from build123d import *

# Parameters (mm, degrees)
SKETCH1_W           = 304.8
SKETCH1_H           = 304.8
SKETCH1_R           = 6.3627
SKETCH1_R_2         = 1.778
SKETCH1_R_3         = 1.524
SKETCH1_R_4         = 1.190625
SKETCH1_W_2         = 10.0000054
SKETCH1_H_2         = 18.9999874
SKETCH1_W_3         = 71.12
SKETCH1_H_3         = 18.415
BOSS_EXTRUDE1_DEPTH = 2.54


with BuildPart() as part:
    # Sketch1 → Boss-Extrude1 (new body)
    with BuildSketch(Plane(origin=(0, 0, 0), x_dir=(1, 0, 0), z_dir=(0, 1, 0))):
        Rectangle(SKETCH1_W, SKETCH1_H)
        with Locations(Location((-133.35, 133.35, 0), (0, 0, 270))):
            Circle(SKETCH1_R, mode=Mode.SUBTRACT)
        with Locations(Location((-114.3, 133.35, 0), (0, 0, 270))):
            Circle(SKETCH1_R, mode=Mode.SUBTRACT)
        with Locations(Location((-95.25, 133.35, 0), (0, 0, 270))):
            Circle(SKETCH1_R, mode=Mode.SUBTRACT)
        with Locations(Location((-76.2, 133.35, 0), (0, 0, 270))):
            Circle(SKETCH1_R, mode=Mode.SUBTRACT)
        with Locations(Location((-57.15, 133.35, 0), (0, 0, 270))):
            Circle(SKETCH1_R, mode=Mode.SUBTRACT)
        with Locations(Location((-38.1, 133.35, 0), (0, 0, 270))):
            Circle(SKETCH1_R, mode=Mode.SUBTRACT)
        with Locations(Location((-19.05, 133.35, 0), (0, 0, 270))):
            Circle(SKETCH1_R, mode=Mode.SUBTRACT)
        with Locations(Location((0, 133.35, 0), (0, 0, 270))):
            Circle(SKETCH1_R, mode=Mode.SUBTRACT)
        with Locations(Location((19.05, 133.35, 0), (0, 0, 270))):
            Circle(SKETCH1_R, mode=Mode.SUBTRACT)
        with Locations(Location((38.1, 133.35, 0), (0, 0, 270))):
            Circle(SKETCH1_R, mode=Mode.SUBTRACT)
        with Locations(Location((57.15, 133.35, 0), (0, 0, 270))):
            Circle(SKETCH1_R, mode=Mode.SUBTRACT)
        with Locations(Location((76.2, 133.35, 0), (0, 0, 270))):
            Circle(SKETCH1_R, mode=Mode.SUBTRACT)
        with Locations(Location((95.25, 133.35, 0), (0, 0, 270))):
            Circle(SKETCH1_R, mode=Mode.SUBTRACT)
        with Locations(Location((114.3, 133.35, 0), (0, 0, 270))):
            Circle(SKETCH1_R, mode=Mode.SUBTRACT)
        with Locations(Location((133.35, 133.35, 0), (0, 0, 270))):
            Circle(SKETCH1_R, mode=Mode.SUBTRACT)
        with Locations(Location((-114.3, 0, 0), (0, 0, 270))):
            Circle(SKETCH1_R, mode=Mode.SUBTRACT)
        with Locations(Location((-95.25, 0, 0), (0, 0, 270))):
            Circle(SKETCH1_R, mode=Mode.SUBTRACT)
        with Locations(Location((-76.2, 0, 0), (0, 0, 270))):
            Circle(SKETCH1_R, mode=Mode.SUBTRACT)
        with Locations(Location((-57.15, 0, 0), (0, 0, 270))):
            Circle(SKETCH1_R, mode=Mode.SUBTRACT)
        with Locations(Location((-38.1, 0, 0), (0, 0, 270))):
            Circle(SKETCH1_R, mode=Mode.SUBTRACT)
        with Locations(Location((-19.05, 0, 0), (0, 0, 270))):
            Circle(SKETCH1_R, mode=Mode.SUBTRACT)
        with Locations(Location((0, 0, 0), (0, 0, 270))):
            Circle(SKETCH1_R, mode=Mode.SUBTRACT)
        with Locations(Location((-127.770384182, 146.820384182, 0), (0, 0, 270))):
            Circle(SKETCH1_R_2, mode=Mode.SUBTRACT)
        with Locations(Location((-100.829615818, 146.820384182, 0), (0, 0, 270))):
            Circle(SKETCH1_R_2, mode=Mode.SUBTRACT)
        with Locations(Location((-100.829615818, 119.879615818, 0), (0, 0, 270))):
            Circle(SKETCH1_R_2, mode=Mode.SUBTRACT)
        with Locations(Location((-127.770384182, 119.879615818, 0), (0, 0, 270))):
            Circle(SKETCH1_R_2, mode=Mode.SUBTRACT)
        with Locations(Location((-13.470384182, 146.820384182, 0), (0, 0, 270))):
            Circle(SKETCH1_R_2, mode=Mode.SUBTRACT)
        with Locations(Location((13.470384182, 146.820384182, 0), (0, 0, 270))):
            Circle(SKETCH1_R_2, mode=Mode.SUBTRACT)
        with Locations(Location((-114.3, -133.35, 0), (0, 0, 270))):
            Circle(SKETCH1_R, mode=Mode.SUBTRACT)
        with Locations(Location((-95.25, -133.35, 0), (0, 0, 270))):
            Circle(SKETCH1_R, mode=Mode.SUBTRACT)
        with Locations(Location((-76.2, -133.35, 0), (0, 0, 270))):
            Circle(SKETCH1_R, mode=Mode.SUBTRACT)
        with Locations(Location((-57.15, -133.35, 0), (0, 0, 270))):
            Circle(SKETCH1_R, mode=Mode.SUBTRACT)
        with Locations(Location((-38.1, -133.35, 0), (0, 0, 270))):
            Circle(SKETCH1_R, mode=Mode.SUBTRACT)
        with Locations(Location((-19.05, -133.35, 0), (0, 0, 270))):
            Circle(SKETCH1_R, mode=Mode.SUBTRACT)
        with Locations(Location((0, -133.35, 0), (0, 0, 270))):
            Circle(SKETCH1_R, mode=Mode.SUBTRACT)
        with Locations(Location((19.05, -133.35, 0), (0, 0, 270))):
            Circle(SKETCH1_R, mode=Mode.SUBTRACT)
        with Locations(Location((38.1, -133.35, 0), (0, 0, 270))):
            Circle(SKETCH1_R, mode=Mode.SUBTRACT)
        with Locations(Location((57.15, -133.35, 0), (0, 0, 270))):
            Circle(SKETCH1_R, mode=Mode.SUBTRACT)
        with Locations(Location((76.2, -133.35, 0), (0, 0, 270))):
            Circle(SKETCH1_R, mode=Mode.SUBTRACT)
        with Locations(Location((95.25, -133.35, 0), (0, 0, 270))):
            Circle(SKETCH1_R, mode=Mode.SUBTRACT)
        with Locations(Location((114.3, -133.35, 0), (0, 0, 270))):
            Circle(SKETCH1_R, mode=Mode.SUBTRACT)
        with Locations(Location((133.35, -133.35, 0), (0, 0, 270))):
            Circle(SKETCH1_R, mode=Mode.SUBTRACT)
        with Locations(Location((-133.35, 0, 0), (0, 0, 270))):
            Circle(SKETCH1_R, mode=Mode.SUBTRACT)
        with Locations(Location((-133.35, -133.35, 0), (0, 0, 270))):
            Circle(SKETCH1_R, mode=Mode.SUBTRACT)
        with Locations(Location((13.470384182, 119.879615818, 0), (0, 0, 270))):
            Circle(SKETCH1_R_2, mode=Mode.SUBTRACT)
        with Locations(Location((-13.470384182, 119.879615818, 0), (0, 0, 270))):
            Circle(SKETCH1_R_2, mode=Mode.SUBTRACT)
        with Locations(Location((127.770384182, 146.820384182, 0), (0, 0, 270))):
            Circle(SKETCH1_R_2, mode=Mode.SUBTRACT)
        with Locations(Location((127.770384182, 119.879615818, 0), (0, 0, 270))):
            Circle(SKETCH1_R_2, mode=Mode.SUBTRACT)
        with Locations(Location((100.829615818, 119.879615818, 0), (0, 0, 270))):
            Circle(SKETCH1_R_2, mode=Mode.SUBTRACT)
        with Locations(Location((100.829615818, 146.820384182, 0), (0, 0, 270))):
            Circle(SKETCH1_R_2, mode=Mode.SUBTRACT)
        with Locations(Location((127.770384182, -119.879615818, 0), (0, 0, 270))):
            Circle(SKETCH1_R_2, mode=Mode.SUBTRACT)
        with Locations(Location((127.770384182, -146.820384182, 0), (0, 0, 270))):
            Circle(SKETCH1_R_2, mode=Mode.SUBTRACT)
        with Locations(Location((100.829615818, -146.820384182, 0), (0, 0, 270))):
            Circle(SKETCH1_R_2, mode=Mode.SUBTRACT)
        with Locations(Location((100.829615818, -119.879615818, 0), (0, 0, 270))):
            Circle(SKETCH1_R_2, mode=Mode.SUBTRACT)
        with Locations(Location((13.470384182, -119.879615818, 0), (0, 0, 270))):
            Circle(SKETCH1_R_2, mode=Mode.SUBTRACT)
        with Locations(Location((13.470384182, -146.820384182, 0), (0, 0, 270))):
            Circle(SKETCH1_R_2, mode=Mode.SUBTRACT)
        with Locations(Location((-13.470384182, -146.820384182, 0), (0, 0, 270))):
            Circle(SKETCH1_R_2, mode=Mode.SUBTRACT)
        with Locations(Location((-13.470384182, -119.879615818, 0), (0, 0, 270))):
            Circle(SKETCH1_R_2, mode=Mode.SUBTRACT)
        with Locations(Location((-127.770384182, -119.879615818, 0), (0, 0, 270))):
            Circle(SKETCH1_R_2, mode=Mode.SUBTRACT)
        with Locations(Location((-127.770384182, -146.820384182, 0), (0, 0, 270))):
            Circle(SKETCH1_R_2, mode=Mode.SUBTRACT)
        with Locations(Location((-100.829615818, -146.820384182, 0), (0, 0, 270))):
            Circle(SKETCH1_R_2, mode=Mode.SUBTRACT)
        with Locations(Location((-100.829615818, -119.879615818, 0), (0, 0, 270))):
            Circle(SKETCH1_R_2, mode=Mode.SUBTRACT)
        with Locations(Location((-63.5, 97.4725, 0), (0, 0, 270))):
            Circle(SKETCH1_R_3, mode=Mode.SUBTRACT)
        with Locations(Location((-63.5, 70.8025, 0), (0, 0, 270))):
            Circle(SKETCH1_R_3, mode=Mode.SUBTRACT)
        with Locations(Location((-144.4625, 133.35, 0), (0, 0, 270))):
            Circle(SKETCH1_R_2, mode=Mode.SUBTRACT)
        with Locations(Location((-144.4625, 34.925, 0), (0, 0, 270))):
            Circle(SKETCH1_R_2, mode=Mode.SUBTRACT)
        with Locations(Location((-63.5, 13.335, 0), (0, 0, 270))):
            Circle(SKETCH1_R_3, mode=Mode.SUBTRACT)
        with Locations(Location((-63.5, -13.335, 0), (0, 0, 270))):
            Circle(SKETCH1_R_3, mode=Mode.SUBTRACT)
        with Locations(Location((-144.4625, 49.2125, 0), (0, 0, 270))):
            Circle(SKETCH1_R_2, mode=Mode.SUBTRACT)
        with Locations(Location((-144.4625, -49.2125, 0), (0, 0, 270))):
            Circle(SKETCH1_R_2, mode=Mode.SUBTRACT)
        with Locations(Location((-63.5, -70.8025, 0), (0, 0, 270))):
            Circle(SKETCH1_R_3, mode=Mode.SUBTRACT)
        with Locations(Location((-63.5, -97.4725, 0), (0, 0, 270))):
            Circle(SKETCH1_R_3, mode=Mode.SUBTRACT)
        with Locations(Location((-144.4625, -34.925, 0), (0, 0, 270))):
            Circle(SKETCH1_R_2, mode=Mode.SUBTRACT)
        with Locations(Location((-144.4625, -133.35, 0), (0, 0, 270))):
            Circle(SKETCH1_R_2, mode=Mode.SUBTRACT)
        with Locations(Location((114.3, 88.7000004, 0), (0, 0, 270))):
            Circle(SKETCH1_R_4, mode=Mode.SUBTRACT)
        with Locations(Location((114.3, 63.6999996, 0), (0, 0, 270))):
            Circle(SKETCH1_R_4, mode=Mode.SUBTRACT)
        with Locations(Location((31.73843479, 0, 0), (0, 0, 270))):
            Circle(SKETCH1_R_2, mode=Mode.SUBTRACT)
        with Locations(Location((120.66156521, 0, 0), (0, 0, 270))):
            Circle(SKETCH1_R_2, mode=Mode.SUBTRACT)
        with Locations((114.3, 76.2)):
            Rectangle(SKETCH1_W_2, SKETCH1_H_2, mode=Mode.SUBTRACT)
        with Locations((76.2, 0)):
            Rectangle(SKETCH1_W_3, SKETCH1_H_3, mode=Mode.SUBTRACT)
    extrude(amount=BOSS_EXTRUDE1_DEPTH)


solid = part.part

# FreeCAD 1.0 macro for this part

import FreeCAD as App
import Part
import Sketcher
from FreeCAD import Vector
Q = App.Units.Quantity

doc = App.newDocument("Part")
params = doc.addObject("Spreadsheet::Sheet", "Params")
for row, (alias, value) in enumerate([
    ("sketch1_diameter", "0.14 in"),
    ("sketch1_diameter2", "0.12 in"),
    ("sketch1_width", "12 in"),
    ("sketch1_diameter3", "0.501 in"),
    ("sketch1_diameter4", "0.09375 in"),
    ("pad1_length", "0.1 in"),
], start=1):
    params.set(f"A{row}", alias)
    params.set(f"B{row}", "=" + value)
    params.setAlias(f"B{row}", alias)

body = doc.addObject("PartDesign::Body", "Body")

sketch1 = body.newObject("Sketcher::SketchObject", "Sketch")
sketch1.AttachmentSupport = (doc.getObject("XZ_Plane"), [""])
sketch1.MapMode = "FlatFace"
sketch1.addGeometry([
    Part.LineSegment(Vector(-152.4, -152.4, 0), Vector(-152.4, 152.4, 0)),
    Part.LineSegment(Vector(-152.4, 152.4, 0), Vector(152.4, 152.4, 0)),
    Part.LineSegment(Vector(152.4, 152.4, 0), Vector(152.4, -152.4, 0)),
    Part.LineSegment(Vector(152.4, -152.4, 0), Vector(-152.4, -152.4, 0)),
    Part.Circle(Vector(-144.5, 133.3, 0), Vector(0, 0, 1), 1.8),
    Part.Circle(Vector(-133.3, 133.3, 0), Vector(0, 0, 1), 6.4),
    Part.Circle(Vector(-127.8, 146.8, 0), Vector(0, 0, 1), 1.8),
    Part.Circle(Vector(-114.3, 133.3, 0), Vector(0, 0, 1), 6.4),
    Part.Circle(Vector(-127.8, 119.9, 0), Vector(0, 0, 1), 1.8),
    Part.Circle(Vector(-100.8, 146.8, 0), Vector(0, 0, 1), 1.8),
    Part.Circle(Vector(-95.2, 133.3, 0), Vector(0, 0, 1), 6.4),
    Part.Circle(Vector(-76.2, 133.3, 0), Vector(0, 0, 1), 6.4),
    Part.Circle(Vector(-100.8, 119.9, 0), Vector(0, 0, 1), 1.8),
    Part.Circle(Vector(-57.1, 133.3, 0), Vector(0, 0, 1), 6.4),
    Part.Circle(Vector(-38.1, 133.3, 0), Vector(0, 0, 1), 6.4),
    Part.Circle(Vector(-13.5, 146.8, 0), Vector(0, 0, 1), 1.8),
    Part.Circle(Vector(-19.1, 133.3, 0), Vector(0, 0, 1), 6.4),
    Part.Circle(Vector(-13.5, 119.9, 0), Vector(0, 0, 1), 1.8),
    Part.Circle(Vector(-63.5, 97.5, 0), Vector(0, 0, 1), 1.5),
    Part.Circle(Vector(-144.5, 49.2, 0), Vector(0, 0, 1), 1.8),
    Part.Circle(Vector(-144.5, 34.9, 0), Vector(0, 0, 1), 1.8),
    Part.Circle(Vector(-63.5, 70.8, 0), Vector(0, 0, 1), 1.5),
    Part.Circle(Vector(-63.5, 13.3, 0), Vector(0, 0, 1), 1.5),
    Part.Circle(Vector(13.5, 146.8, 0), Vector(0, 0, 1), 1.8),
    Part.Circle(Vector(0, 133.3, 0), Vector(0, 0, 1), 6.4),
    Part.Circle(Vector(19.1, 133.3, 0), Vector(0, 0, 1), 6.4),
    Part.Circle(Vector(13.5, 119.9, 0), Vector(0, 0, 1), 1.8),
    Part.Circle(Vector(38.1, 133.3, 0), Vector(0, 0, 1), 6.4),
    Part.Circle(Vector(57.1, 133.3, 0), Vector(0, 0, 1), 6.4),
    Part.Circle(Vector(76.2, 133.3, 0), Vector(0, 0, 1), 6.4),
    Part.Circle(Vector(100.8, 146.8, 0), Vector(0, 0, 1), 1.8),
    Part.Circle(Vector(95.2, 133.3, 0), Vector(0, 0, 1), 6.4),
    Part.Circle(Vector(100.8, 119.9, 0), Vector(0, 0, 1), 1.8),
    Part.Circle(Vector(114.3, 133.3, 0), Vector(0, 0, 1), 6.4),
    Part.Circle(Vector(127.8, 146.8, 0), Vector(0, 0, 1), 1.8),
    Part.Circle(Vector(133.3, 133.3, 0), Vector(0, 0, 1), 6.4),
    Part.Circle(Vector(127.8, 119.9, 0), Vector(0, 0, 1), 1.8),
    Part.Circle(Vector(-133.3, 0, 0), Vector(0, 0, 1), 6.4),
    Part.Circle(Vector(-114.3, 0, 0), Vector(0, 0, 1), 6.4),
    Part.Circle(Vector(-144.5, -34.9, 0), Vector(0, 0, 1), 1.8),
    Part.Circle(Vector(-95.2, 0, 0), Vector(0, 0, 1), 6.4),
    Part.Circle(Vector(-76.2, 0, 0), Vector(0, 0, 1), 6.4),
    Part.Circle(Vector(-144.5, -49.2, 0), Vector(0, 0, 1), 1.8),
    Part.Circle(Vector(-57.1, 0, 0), Vector(0, 0, 1), 6.4),
    Part.Circle(Vector(-63.5, -13.3, 0), Vector(0, 0, 1), 1.5),
    Part.Circle(Vector(-38.1, 0, 0), Vector(0, 0, 1), 6.4),
    Part.Circle(Vector(-19.1, 0, 0), Vector(0, 0, 1), 6.4),
    Part.Circle(Vector(-63.5, -70.8, 0), Vector(0, 0, 1), 1.5),
    Part.Circle(Vector(-127.8, -119.9, 0), Vector(0, 0, 1), 1.8),
    Part.Circle(Vector(-144.5, -133.3, 0), Vector(0, 0, 1), 1.8),
    Part.Circle(Vector(-133.3, -133.3, 0), Vector(0, 0, 1), 6.4),
    Part.Circle(Vector(-114.3, -133.3, 0), Vector(0, 0, 1), 6.4),
    Part.Circle(Vector(-127.8, -146.8, 0), Vector(0, 0, 1), 1.8),
    Part.Circle(Vector(-100.8, -119.9, 0), Vector(0, 0, 1), 1.8),
    Part.Circle(Vector(-95.2, -133.3, 0), Vector(0, 0, 1), 6.4),
    Part.Circle(Vector(-100.8, -146.8, 0), Vector(0, 0, 1), 1.8),
    Part.Circle(Vector(-76.2, -133.3, 0), Vector(0, 0, 1), 6.4),
    Part.Circle(Vector(-63.5, -97.5, 0), Vector(0, 0, 1), 1.5),
    Part.Circle(Vector(-57.1, -133.3, 0), Vector(0, 0, 1), 6.4),
    Part.Circle(Vector(-13.5, -119.9, 0), Vector(0, 0, 1), 1.8),
    Part.Circle(Vector(-38.1, -133.3, 0), Vector(0, 0, 1), 6.4),
    Part.Circle(Vector(-19.1, -133.3, 0), Vector(0, 0, 1), 6.4),
    Part.Circle(Vector(-13.5, -146.8, 0), Vector(0, 0, 1), 1.8),
    Part.Circle(Vector(0, 0, 0), Vector(0, 0, 1), 6.4),
    Part.Circle(Vector(31.7, 0, 0), Vector(0, 0, 1), 1.8),
    Part.LineSegment(Vector(111.8, 9.2, 0), Vector(40.6, 9.2, 0)),
    Part.LineSegment(Vector(40.6, 9.2, 0), Vector(40.6, -9.2, 0)),
    Part.LineSegment(Vector(40.6, -9.2, 0), Vector(111.8, -9.2, 0)),
    Part.LineSegment(Vector(111.8, -9.2, 0), Vector(111.8, 9.2, 0)),
    Part.Circle(Vector(120.7, 0, 0), Vector(0, 0, 1), 1.8),
    Part.Circle(Vector(114.3, -63.7, 0), Vector(0, 0, 1), 1.2),
    Part.Circle(Vector(13.5, -119.9, 0), Vector(0, 0, 1), 1.8),
    Part.Circle(Vector(0, -133.3, 0), Vector(0, 0, 1), 6.4),
    Part.Circle(Vector(13.5, -146.8, 0), Vector(0, 0, 1), 1.8),
    Part.Circle(Vector(19.1, -133.3, 0), Vector(0, 0, 1), 6.4),
    Part.Circle(Vector(38.1, -133.3, 0), Vector(0, 0, 1), 6.4),
    Part.Circle(Vector(57.1, -133.3, 0), Vector(0, 0, 1), 6.4),
    Part.LineSegment(Vector(119.3, -66.7, 0), Vector(109.3, -66.7, 0)),
    Part.LineSegment(Vector(109.3, -66.7, 0), Vector(109.3, -85.7, 0)),
    Part.LineSegment(Vector(109.3, -85.7, 0), Vector(119.3, -85.7, 0)),
    Part.LineSegment(Vector(119.3, -85.7, 0), Vector(119.3, -66.7, 0)),
    Part.Circle(Vector(114.3, -88.7, 0), Vector(0, 0, 1), 1.2),
    Part.Circle(Vector(100.8, -119.9, 0), Vector(0, 0, 1), 1.8),
    Part.Circle(Vector(76.2, -133.3, 0), Vector(0, 0, 1), 6.4),
    Part.Circle(Vector(95.2, -133.3, 0), Vector(0, 0, 1), 6.4),
    Part.Circle(Vector(100.8, -146.8, 0), Vector(0, 0, 1), 1.8),
    Part.Circle(Vector(127.8, -119.9, 0), Vector(0, 0, 1), 1.8),
    Part.Circle(Vector(114.3, -133.3, 0), Vector(0, 0, 1), 6.4),
    Part.Circle(Vector(133.3, -133.3, 0), Vector(0, 0, 1), 6.4),
    Part.Circle(Vector(127.8, -146.8, 0), Vector(0, 0, 1), 1.8),
], False)
sketch1.addConstraint([
    Sketcher.Constraint("Coincident", 0, 2, 1, 1),
    Sketcher.Constraint("Coincident", 1, 2, 2, 1),
    Sketcher.Constraint("Coincident", 2, 2, 3, 1),
    Sketcher.Constraint("Coincident", 3, 2, 0, 1),
    Sketcher.Constraint("Coincident", 65, 2, 66, 1),
    Sketcher.Constraint("Coincident", 66, 2, 67, 1),
    Sketcher.Constraint("Coincident", 67, 2, 68, 1),
    Sketcher.Constraint("Coincident", 68, 2, 65, 1),
    Sketcher.Constraint("Coincident", 77, 2, 78, 1),
    Sketcher.Constraint("Coincident", 78, 2, 79, 1),
    Sketcher.Constraint("Coincident", 79, 2, 80, 1),
    Sketcher.Constraint("Coincident", 80, 2, 77, 1),
    Sketcher.Constraint("Vertical", 0),
    Sketcher.Constraint("Horizontal", 1),
    Sketcher.Constraint("Vertical", 2),
    Sketcher.Constraint("Horizontal", 3),
    Sketcher.Constraint("Horizontal", 65),
    Sketcher.Constraint("Vertical", 66),
    Sketcher.Constraint("Horizontal", 67),
    Sketcher.Constraint("Vertical", 68),
    Sketcher.Constraint("Horizontal", 77),
    Sketcher.Constraint("Vertical", 78),
    Sketcher.Constraint("Horizontal", 79),
    Sketcher.Constraint("Vertical", 80),
    Sketcher.Constraint("Coincident", 63, 3, -1, 1),
    Sketcher.Constraint("Equal", 4, 6),
    Sketcher.Constraint("Equal", 5, 7),
    Sketcher.Constraint("Equal", 6, 8),
    Sketcher.Constraint("Equal", 8, 9),
    Sketcher.Constraint("Equal", 7, 10),
    Sketcher.Constraint("Equal", 10, 11),
    Sketcher.Constraint("Equal", 9, 12),
    Sketcher.Constraint("Equal", 11, 13),
    Sketcher.Constraint("Equal", 13, 14),
    Sketcher.Constraint("Equal", 12, 15),
    Sketcher.Constraint("Equal", 14, 16),
    Sketcher.Constraint("Equal", 15, 17),
    Sketcher.Constraint("Equal", 17, 19),
    Sketcher.Constraint("Equal", 19, 20),
    Sketcher.Constraint("Equal", 18, 21),
    Sketcher.Constraint("Equal", 21, 22),
    Sketcher.Constraint("Equal", 20, 23),
    Sketcher.Constraint("Equal", 16, 24),
    Sketcher.Constraint("Equal", 24, 25),
    Sketcher.Constraint("Equal", 23, 26),
    Sketcher.Constraint("Equal", 25, 27),
    Sketcher.Constraint("Equal", 27, 28),
    Sketcher.Constraint("Equal", 28, 29),
    Sketcher.Constraint("Equal", 26, 30),
    Sketcher.Constraint("Equal", 29, 31),
    Sketcher.Constraint("Equal", 30, 32),
    Sketcher.Constraint("Equal", 31, 33),
    Sketcher.Constraint("Equal", 32, 34),
    Sketcher.Constraint("Equal", 33, 35),
    Sketcher.Constraint("Equal", 34, 36),
    Sketcher.Constraint("Equal", 35, 37),
    Sketcher.Constraint("Equal", 37, 38),
    Sketcher.Constraint("Equal", 36, 39),
    Sketcher.Constraint("Equal", 38, 40),
    Sketcher.Constraint("Equal", 40, 41),
    Sketcher.Constraint("Equal", 39, 42),
    Sketcher.Constraint("Equal", 41, 43),
    Sketcher.Constraint("Equal", 22, 44),
    Sketcher.Constraint("Equal", 43, 45),
    Sketcher.Constraint("Equal", 45, 46),
    Sketcher.Constraint("Equal", 44, 47),
    Sketcher.Constraint("Equal", 42, 48),
    Sketcher.Constraint("Equal", 48, 49),
    Sketcher.Constraint("Equal", 46, 50),
    Sketcher.Constraint("Equal", 50, 51),
    Sketcher.Constraint("Equal", 49, 52),
    Sketcher.Constraint("Equal", 52, 53),
    Sketcher.Constraint("Equal", 51, 54),
    Sketcher.Constraint("Equal", 53, 55),
    Sketcher.Constraint("Equal", 54, 56),
    Sketcher.Constraint("Equal", 47, 57),
    Sketcher.Constraint("Equal", 56, 58),
    Sketcher.Constraint("Equal", 55, 59),
    Sketcher.Constraint("Equal", 58, 60),
    Sketcher.Constraint("Equal", 60, 61),
    Sketcher.Constraint("Equal", 59, 62),
    Sketcher.Constraint("Equal", 61, 63),
    Sketcher.Constraint("Equal", 62, 64),
    Sketcher.Constraint("Equal", 64, 69),
    Sketcher.Constraint("Equal", 69, 71),
    Sketcher.Constraint("Equal", 63, 72),
    Sketcher.Constraint("Equal", 71, 73),
    Sketcher.Constraint("Equal", 72, 74),
    Sketcher.Constraint("Equal", 74, 75),
    Sketcher.Constraint("Equal", 75, 76),
    Sketcher.Constraint("Equal", 70, 81),
    Sketcher.Constraint("Equal", 73, 82),
    Sketcher.Constraint("Equal", 76, 83),
    Sketcher.Constraint("Equal", 83, 84),
    Sketcher.Constraint("Equal", 82, 85),
    Sketcher.Constraint("Equal", 85, 86),
    Sketcher.Constraint("Equal", 84, 87),
    Sketcher.Constraint("Equal", 87, 88),
    Sketcher.Constraint("Equal", 86, 89),
    Sketcher.Constraint("Symmetric", 36, 3, 48, 3, -1, 1),
    Sketcher.Constraint("Symmetric", 35, 3, 50, 3, -1, 1),
    Sketcher.Constraint("Symmetric", 33, 3, 51, 3, -1, 1),
    Sketcher.Constraint("Symmetric", 34, 3, 52, 3, -1, 1),
    Sketcher.Constraint("Symmetric", 32, 3, 53, 3, -1, 1),
    Sketcher.Constraint("Symmetric", 31, 3, 54, 3, -1, 1),
    Sketcher.Constraint("Symmetric", 30, 3, 55, 3, -1, 1),
    Sketcher.Constraint("Symmetric", 29, 3, 56, 3, -1, 1),
    Sketcher.Constraint("Symmetric", 28, 3, 58, 3, -1, 1),
    Sketcher.Constraint("Symmetric", 26, 3, 59, 3, -1, 1),
    Sketcher.Constraint("Symmetric", 27, 3, 60, 3, -1, 1),
    Sketcher.Constraint("Symmetric", 25, 3, 61, 3, -1, 1),
    Sketcher.Constraint("Symmetric", 23, 3, 62, 3, -1, 1),
    Sketcher.Constraint("Symmetric", 17, 3, 71, 3, -1, 1),
    Sketcher.Constraint("Symmetric", 24, 3, 72, 3, -1, 1),
    Sketcher.Constraint("Symmetric", 15, 3, 73, 3, -1, 1),
    Sketcher.Constraint("Symmetric", 16, 3, 74, 3, -1, 1),
    Sketcher.Constraint("Symmetric", 14, 3, 75, 3, -1, 1),
    Sketcher.Constraint("Symmetric", 13, 3, 76, 3, -1, 1),
    Sketcher.Constraint("Symmetric", 12, 3, 82, 3, -1, 1),
    Sketcher.Constraint("Symmetric", 11, 3, 83, 3, -1, 1),
    Sketcher.Constraint("Symmetric", 10, 3, 84, 3, -1, 1),
    Sketcher.Constraint("Symmetric", 9, 3, 85, 3, -1, 1),
    Sketcher.Constraint("Symmetric", 8, 3, 86, 3, -1, 1),
    Sketcher.Constraint("Symmetric", 7, 3, 87, 3, -1, 1),
    Sketcher.Constraint("Symmetric", 5, 3, 88, 3, -1, 1),
    Sketcher.Constraint("Symmetric", 6, 3, 89, 3, -1, 1),
    Sketcher.Constraint("Symmetric", 0, 2, 2, 2, -1, 1),
    Sketcher.Constraint("Symmetric", 15, 3, 23, 3, -2),
    Sketcher.Constraint("Symmetric", 16, 3, 25, 3, -2),
    Sketcher.Constraint("Symmetric", 17, 3, 26, 3, -2),
    Sketcher.Constraint("Symmetric", 14, 3, 27, 3, -2),
    Sketcher.Constraint("Symmetric", 13, 3, 28, 3, -2),
    Sketcher.Constraint("Symmetric", 11, 3, 29, 3, -2),
    Sketcher.Constraint("Symmetric", 9, 3, 30, 3, -2),
    Sketcher.Constraint("Symmetric", 10, 3, 31, 3, -2),
    Sketcher.Constraint("Symmetric", 12, 3, 32, 3, -2),
    Sketcher.Constraint("Symmetric", 7, 3, 33, 3, -2),
    Sketcher.Constraint("Symmetric", 6, 3, 34, 3, -2),
    Sketcher.Constraint("Symmetric", 5, 3, 35, 3, -2),
    Sketcher.Constraint("Symmetric", 8, 3, 36, 3, -2),
    Sketcher.Constraint("Symmetric", 20, 3, 39, 3, -1),
    Sketcher.Constraint("Symmetric", 19, 3, 42, 3, -1),
    Sketcher.Constraint("Symmetric", 22, 3, 44, 3, -1),
    Sketcher.Constraint("Symmetric", 21, 3, 47, 3, -1),
    Sketcher.Constraint("Symmetric", 4, 3, 49, 3, -1),
    Sketcher.Constraint("Symmetric", 18, 3, 57, 3, -1),
    Sketcher.Constraint("PointOnObject", 24, 3, -2),
    Sketcher.Constraint("PointOnObject", 37, 3, -1),
    Sketcher.Constraint("PointOnObject", 38, 3, -1),
    Sketcher.Constraint("PointOnObject", 40, 3, -1),
    Sketcher.Constraint("PointOnObject", 41, 3, -1),
    Sketcher.Constraint("PointOnObject", 43, 3, -1),
    Sketcher.Constraint("PointOnObject", 45, 3, -1),
    Sketcher.Constraint("PointOnObject", 46, 3, -1),
    Sketcher.Constraint("PointOnObject", 64, 3, -1),
    Sketcher.Constraint("PointOnObject", 69, 3, -1),
    Sketcher.Constraint("Horizontal", 4, 3, 5, 3),
    Sketcher.Constraint("Horizontal", 5, 3, 7, 3),
    Sketcher.Constraint("Horizontal", 6, 3, 9, 3),
    Sketcher.Constraint("Horizontal", 7, 3, 10, 3),
    Sketcher.Constraint("Horizontal", 10, 3, 11, 3),
    Sketcher.Constraint("Horizontal", 8, 3, 12, 3),
    Sketcher.Constraint("Horizontal", 11, 3, 13, 3),
    Sketcher.Constraint("Horizontal", 13, 3, 14, 3),
    Sketcher.Constraint("Horizontal", 9, 3, 15, 3),
    Sketcher.Constraint("Horizontal", 14, 3, 16, 3),
    Sketcher.Constraint("Horizontal", 12, 3, 17, 3),
    Sketcher.Constraint("Horizontal", 16, 3, 24, 3),
    Sketcher.Constraint("Vertical", 6, 3, 8, 3),
    Sketcher.Constraint("Vertical", 9, 3, 12, 3),
    Sketcher.Constraint("Vertical", 15, 3, 17, 3),
    Sketcher.Constraint("Vertical", 4, 3, 19, 3),
    Sketcher.Constraint("Vertical", 19, 3, 20, 3),
    Sketcher.Constraint("Vertical", 18, 3, 21, 3),
    Sketcher.Constraint("Vertical", 21, 3, 22, 3),
    Sketcher.Constraint("Vertical", 5, 3, 37, 3),
    Sketcher.Constraint("Vertical", 7, 3, 38, 3),
    Sketcher.Constraint("Vertical", 10, 3, 40, 3),
    Sketcher.Constraint("Vertical", 11, 3, 41, 3),
    Sketcher.Constraint("Vertical", 13, 3, 43, 3),
    Sketcher.Constraint("Vertical", 14, 3, 45, 3),
    Sketcher.Constraint("Vertical", 16, 3, 46, 3),
    Sketcher.Constraint("Vertical", 33, 3, 70, 3),
    Sketcher.Constraint("Vertical", 70, 3, 81, 3),
    Sketcher.Constraint("Equal", 3, 0),
    Sketcher.Constraint("Diameter", 4, Q("0.14 in")),
    Sketcher.Constraint("Diameter", 18, Q("0.12 in")),
    Sketcher.Constraint("DistanceX", 1, 1, 1, 2, Q("12 in")),
    Sketcher.Constraint("Diameter", 5, Q("0.501 in")),
    Sketcher.Constraint("Diameter", 70, Q("0.09375 in")),
    Sketcher.Constraint("DistanceX", 65, 2, 65, 1, Q("2.8 in")),
    Sketcher.Constraint("DistanceX", 11, 3, -1, 1, Q("3 in")),
    Sketcher.Constraint("DistanceX", 7, 3, -1, 1, Q("4.5 in")),
    Sketcher.Constraint("DistanceX", 14, 3, -1, 1, Q("1.5 in")),
    Sketcher.Constraint("DistanceX", 18, 3, -1, 1, Q("2.5 in")),
    Sketcher.Constraint("DistanceX", -1, 1, 65, 2, Q("1.6 in")),
    Sketcher.Constraint("DistanceY", 66, 2, 66, 1, Q("0.725 in")),
    Sketcher.Constraint("DistanceY", -1, 1, 4, 3, Q("5.25 in")),
    Sketcher.Constraint("DistanceX", 5, 3, -1, 1, Q("5.25 in")),
    Sketcher.Constraint("DistanceX", 10, 3, -1, 1, Q("3.75 in")),
    Sketcher.Constraint("DistanceX", 13, 3, -1, 1, Q("2.25 in")),
    Sketcher.Constraint("DistanceX", 16, 3, -1, 1, Q("0.75 in")),
    Sketcher.Constraint("DistanceX", 4, 3, -1, 1, Q("5.6875 in")),
    Sketcher.Constraint("DistanceY", -1, 1, 19, 3, Q("1.9375 in")),
    Sketcher.Constraint("DistanceY", -1, 1, 20, 3, Q("1.375 in")),
    Sketcher.Constraint("DistanceY", -1, 1, 22, 3, Q("0.525 in")),
    Sketcher.Constraint("DistanceY", -1, 1, 18, 3, Q("3.8375 in")),
    Sketcher.Constraint("DistanceY", -1, 1, 21, 3, Q("2.7875 in")),
    Sketcher.Constraint("DistanceY", -1, 1, 65, 2, Q("0.3625 in")),
    Sketcher.Constraint("DistanceY", 70, 3, -1, 1, 63.7),
    Sketcher.Constraint("DistanceY", 81, 3, -1, 1, 88.7),
    Sketcher.Constraint("DistanceX", 77, 2, 77, 1, 10.000005),
    Sketcher.Constraint("DistanceY", 78, 2, 78, 1, 18.999987),
    Sketcher.Constraint("DistanceX", 6, 3, -1, 1, 127.770384),
    Sketcher.Constraint("DistanceY", -1, 1, 6, 3, 146.820384),
    Sketcher.Constraint("DistanceY", -1, 1, 8, 3, 119.879616),
    Sketcher.Constraint("DistanceX", 9, 3, -1, 1, 100.829616),
    Sketcher.Constraint("DistanceX", 15, 3, -1, 1, 13.470384),
    Sketcher.Constraint("DistanceX", -1, 1, 64, 3, 31.738435),
    Sketcher.Constraint("DistanceX", -1, 1, 69, 3, 120.661565),
    Sketcher.Constraint("DistanceX", -1, 1, 77, 2, 109.299997),
    Sketcher.Constraint("DistanceY", 77, 2, -1, 1, 66.700006),
])
sketch1.setExpression("Constraints[185]", "Params.sketch1_diameter")
sketch1.setExpression("Constraints[186]", "Params.sketch1_diameter2")
sketch1.setExpression("Constraints[187]", "Params.sketch1_width")
sketch1.setExpression("Constraints[188]", "Params.sketch1_diameter3")
sketch1.setExpression("Constraints[189]", "Params.sketch1_diameter4")
pad1 = body.newObject("PartDesign::Pad", "Pad")
pad1.Profile = sketch1
pad1.setExpression("Length", "Params.pad1_length")
pad1.Reversed = True

doc.recompute()
